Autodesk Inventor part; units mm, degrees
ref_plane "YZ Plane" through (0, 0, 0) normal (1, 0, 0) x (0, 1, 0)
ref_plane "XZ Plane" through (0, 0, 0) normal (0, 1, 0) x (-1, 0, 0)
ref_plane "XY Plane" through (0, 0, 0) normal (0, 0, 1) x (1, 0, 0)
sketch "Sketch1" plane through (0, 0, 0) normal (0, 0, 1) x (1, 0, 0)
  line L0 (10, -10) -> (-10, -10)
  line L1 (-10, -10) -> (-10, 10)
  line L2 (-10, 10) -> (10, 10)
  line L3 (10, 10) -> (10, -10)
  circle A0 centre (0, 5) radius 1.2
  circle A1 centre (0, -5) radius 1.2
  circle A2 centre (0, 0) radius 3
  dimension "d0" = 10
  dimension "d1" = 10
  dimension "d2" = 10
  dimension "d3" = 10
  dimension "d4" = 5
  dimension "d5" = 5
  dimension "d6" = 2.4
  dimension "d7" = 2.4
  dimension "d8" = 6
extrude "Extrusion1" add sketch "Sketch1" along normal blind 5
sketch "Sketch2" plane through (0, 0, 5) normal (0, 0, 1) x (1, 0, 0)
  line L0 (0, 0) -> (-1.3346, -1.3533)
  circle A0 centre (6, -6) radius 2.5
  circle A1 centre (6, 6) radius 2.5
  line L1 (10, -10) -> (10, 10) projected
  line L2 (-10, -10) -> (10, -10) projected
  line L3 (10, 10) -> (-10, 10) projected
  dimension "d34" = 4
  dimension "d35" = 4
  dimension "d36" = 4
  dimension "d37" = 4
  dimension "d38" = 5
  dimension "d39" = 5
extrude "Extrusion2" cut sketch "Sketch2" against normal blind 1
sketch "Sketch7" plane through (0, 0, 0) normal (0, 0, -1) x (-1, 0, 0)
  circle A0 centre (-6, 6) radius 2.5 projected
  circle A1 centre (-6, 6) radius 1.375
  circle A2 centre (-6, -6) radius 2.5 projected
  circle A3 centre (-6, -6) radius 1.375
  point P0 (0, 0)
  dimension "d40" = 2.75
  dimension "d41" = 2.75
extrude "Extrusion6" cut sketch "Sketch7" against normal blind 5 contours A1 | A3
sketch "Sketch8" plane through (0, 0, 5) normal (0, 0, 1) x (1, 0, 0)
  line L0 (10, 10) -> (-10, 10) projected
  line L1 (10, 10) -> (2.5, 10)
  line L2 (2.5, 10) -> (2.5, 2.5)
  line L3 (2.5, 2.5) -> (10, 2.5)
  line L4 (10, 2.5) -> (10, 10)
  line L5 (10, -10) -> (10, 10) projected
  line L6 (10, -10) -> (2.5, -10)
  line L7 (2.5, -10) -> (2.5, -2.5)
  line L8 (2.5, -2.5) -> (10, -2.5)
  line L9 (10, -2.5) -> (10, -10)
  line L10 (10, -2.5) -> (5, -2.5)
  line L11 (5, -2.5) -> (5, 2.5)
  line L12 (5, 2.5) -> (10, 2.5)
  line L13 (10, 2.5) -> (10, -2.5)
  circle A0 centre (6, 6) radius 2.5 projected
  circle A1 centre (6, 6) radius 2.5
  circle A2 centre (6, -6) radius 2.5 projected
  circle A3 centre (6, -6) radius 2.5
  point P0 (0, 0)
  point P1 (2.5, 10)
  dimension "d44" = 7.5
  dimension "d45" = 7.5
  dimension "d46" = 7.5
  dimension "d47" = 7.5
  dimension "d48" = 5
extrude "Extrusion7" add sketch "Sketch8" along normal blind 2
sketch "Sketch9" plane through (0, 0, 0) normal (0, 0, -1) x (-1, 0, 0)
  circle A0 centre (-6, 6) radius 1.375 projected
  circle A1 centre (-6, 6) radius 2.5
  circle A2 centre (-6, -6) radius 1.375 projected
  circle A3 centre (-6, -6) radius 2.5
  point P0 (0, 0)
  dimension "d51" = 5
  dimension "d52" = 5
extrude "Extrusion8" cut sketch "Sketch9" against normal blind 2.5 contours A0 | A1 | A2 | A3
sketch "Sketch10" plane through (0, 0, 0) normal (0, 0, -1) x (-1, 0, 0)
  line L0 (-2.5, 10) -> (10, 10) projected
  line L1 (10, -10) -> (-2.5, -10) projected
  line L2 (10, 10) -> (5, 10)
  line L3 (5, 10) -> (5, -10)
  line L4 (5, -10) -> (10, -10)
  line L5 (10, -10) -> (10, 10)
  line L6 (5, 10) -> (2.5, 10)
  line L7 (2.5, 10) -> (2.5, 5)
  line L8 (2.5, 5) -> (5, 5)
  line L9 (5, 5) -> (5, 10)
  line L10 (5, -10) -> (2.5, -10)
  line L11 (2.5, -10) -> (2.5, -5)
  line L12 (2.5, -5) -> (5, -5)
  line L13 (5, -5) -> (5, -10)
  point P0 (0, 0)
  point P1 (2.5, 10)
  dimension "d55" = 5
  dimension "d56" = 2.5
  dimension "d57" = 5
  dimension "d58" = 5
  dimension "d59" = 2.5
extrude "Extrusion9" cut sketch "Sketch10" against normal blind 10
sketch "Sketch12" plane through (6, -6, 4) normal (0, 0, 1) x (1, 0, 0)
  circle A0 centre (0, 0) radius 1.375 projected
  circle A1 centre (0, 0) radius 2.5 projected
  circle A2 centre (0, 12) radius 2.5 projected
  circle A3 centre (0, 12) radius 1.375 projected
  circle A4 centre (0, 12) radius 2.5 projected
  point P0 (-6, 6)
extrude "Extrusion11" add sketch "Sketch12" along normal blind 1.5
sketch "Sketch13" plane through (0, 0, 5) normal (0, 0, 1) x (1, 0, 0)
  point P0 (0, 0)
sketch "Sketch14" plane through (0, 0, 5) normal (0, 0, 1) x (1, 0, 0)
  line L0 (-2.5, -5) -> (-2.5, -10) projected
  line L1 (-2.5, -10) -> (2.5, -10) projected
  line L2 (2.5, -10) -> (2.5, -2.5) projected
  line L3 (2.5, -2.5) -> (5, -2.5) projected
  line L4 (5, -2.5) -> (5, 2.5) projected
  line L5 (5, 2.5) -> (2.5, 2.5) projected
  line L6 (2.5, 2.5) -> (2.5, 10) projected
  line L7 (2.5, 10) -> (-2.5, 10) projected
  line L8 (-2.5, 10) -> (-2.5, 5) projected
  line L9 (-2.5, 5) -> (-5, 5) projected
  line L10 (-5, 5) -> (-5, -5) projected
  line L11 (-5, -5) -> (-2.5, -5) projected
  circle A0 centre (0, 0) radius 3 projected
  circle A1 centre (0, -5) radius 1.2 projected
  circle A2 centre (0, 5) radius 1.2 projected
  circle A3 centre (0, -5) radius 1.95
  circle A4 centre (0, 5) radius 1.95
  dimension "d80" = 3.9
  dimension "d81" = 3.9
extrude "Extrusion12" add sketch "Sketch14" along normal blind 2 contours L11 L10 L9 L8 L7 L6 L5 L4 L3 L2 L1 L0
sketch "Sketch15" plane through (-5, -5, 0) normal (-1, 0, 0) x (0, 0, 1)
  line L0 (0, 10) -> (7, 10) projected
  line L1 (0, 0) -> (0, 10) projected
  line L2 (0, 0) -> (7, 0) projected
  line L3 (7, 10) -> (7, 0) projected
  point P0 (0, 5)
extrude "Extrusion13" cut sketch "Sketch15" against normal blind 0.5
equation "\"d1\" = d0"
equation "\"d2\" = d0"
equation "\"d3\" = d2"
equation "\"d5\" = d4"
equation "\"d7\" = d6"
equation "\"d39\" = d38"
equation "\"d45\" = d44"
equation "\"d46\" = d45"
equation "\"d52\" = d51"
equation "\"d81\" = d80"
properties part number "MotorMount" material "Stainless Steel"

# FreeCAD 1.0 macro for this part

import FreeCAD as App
import Part
import Sketcher

V = App.Vector
Q = App.Units.Quantity

doc = App.newDocument("Part")
params = doc.addObject("Spreadsheet::Sheet", "Params")
for row, (alias, value) in enumerate([
    ("sketch1_diameter", "6 mm"),
    ("sketch1_diameter2", "2.4 mm"),
    ("pad1_length", "5 mm"),
    ("sketch2_diameter", "5 mm"),
    ("pocket1_length", "1 mm"),
    ("sketch3_diameter", "2.75 mm"),
    ("pocket2_length", "5 mm"),
    ("sketch4_diameter", "5 mm"),
    ("sketch4_height", "5 mm"),
    ("sketch4_width", "7.5 mm"),
    ("pad2_length", "2 mm"),
    ("sketch5_diameter", "5 mm"),
    ("pocket3_length", "2.5 mm"),
    ("sketch6_height", "5 mm"),
    ("sketch6_width", "2.5 mm"),
    ("pocket4_length", "10 mm"),
    ("sketch7_diameter", "5 mm"),
    ("sketch7_diameter2", "2.75 mm"),
    ("pad3_length", "1.5 mm"),
    ("sketch8_diameter", "3.9 mm"),
    ("sketch8_diameter2", "6 mm"),
    ("sketch8_width", "5 mm"),
    ("sketch8_height", "10 mm"),
    ("sketch8_width2", "2.5 mm"),
    ("pad4_length", "2 mm"),
    ("sketch9_width", "10 mm"),
    ("sketch9_height", "7 mm"),
    ("pocket5_length", "0.5 mm"),
], start=1):
    params.set(f"A{row}", alias)
    params.set(f"B{row}", "=" + value)
    params.setAlias(f"B{row}", alias)

body = doc.addObject("PartDesign::Body", "Body")

# Sketch on XY plane
sketch1 = body.newObject("Sketcher::SketchObject", "Sketch")
sketch1.AttachmentSupport = (doc.getObject("XY_Plane"), [""])
sketch1.MapMode = "FlatFace"
sketch1.addGeometry([
    Part.LineSegment(V(-10, -10, 0), V(10, -10, 0)),  # 0
    Part.LineSegment(V(10, -10, 0), V(10, 10, 0)),  # 1
    Part.LineSegment(V(10, 10, 0), V(-10, 10, 0)),  # 2
    Part.LineSegment(V(-10, 10, 0), V(-10, -10, 0)),  # 3
    Part.Circle(V(0, -5, 0), V(0, 0, 1), 1.2),  # 4
    Part.Circle(V(0, 0, 0), V(0, 0, 1), 3),  # 5
    Part.Circle(V(0, 5, 0), V(0, 0, 1), 1.2),  # 6
], False)
sketch1.addConstraint([
    Sketcher.Constraint("Coincident", 0, 2, 1, 1),
    Sketcher.Constraint("Coincident", 1, 2, 2, 1),
    Sketcher.Constraint("Coincident", 2, 2, 3, 1),
    Sketcher.Constraint("Coincident", 3, 2, 0, 1),
    Sketcher.Constraint("Horizontal", 0),
    Sketcher.Constraint("Vertical", 1),
    Sketcher.Constraint("Horizontal", 2),
    Sketcher.Constraint("Vertical", 3),
    Sketcher.Constraint("Coincident", 5, 3, -1, 1),
    Sketcher.Constraint("Equal", 4, 6),
    Sketcher.Constraint("Symmetric", 4, 3, 6, 3, -1, 1),
    Sketcher.Constraint("Symmetric", 0, 2, 2, 2, -1, 1),
    Sketcher.Constraint("PointOnObject", 4, 3, -2),
    Sketcher.Constraint("Equal", 2, 1),
    Sketcher.Constraint("Diameter", 5, Q("6 mm")),
    Sketcher.Constraint("Diameter", 4, Q("2.4 mm")),
    Sketcher.Constraint("DistanceY", 4, 3, -1, 1, Q("5 mm")),
    Sketcher.Constraint("DistanceX", -1, 1, 0, 2, Q("10 mm")),
])
sketch1.setExpression("Constraints[14]", "Params.sketch1_diameter")
sketch1.setExpression("Constraints[15]", "Params.sketch1_diameter2")
pad1 = body.newObject("PartDesign::Pad", "Pad")
pad1.Profile = sketch1
pad1.setExpression("Length", "Params.pad1_length")

# Sketch on XY plane
sketch2 = body.newObject("Sketcher::SketchObject", "Sketch001")
sketch2.AttachmentSupport = (doc.getObject("XY_Plane"), [""])
sketch2.MapMode = "FlatFace"
sketch2.AttachmentOffset = App.Placement(V(0, 0, 5), App.Rotation())
sketch2.addGeometry([
    Part.Circle(V(6, -6, 0), V(0, 0, 1), 2.5),
    Part.Circle(V(6, 6, 0), V(0, 0, 1), 2.5),
], False)
sketch2.addConstraint([
    Sketcher.Constraint("Equal", 0, 1),
    Sketcher.Constraint("Symmetric", 0, 3, 1, 3, -1),
    Sketcher.Constraint("Diameter", 0, Q("5 mm")),
    Sketcher.Constraint("DistanceX", -1, 1, 0, 3, Q("6 mm")),
    Sketcher.Constraint("DistanceY", 0, 3, -1, 1, Q("6 mm")),
])
sketch2.setExpression("Constraints[2]", "Params.sketch2_diameter")
pocket1 = body.newObject("PartDesign::Pocket", "Pocket")
pocket1.Profile = sketch2
pocket1.setExpression("Length", "Params.pocket1_length")

# Sketch on XY plane
sketch3 = body.newObject("Sketcher::SketchObject", "Sketch002")
sketch3.AttachmentSupport = (doc.getObject("XY_Plane"), [""])
sketch3.MapMode = "FlatFace"
sketch3.addGeometry([
    Part.Circle(V(6, 6, 0), V(0, 0, 1), 1.4),
    Part.Circle(V(6, -6, 0), V(0, 0, 1), 1.4),
], False)
sketch3.addConstraint([
    Sketcher.Constraint("Equal", 0, 1),
    Sketcher.Constraint("Symmetric", 0, 3, 1, 3, -1),
    Sketcher.Constraint("Diameter", 0, Q("2.75 mm")),
    Sketcher.Constraint("DistanceX", -1, 1, 0, 3, Q("6 mm")),
    Sketcher.Constraint("DistanceY", -1, 1, 0, 3, Q("6 mm")),
])
sketch3.setExpression("Constraints[2]", "Params.sketch3_diameter")
pocket2 = body.newObject("PartDesign::Pocket", "Pocket001")
pocket2.Profile = sketch3
pocket2.setExpression("Length", "Params.pocket2_length")
pocket2.Reversed = True

# Sketch on XY plane
sketch4 = body.newObject("Sketcher::SketchObject", "Sketch003")
sketch4.AttachmentSupport = (doc.getObject("XY_Plane"), [""])
sketch4.MapMode = "FlatFace"
sketch4.AttachmentOffset = App.Placement(V(0, 0, 5), App.Rotation())
sketch4.addGeometry([
    Part.LineSegment(V(10, 10, 0), V(2.5, 10, 0)),  # 0
    Part.LineSegment(V(2.5, 10, 0), V(2.5, 2.5, 0)),  # 1
    Part.LineSegment(V(2.5, 2.5, 0), V(5, 2.5, 0)),  # 2
    Part.LineSegment(V(5, 2.5, 0), V(5, -2.5, 0)),  # 3
    Part.LineSegment(V(5, -2.5, 0), V(2.5, -2.5, 0)),  # 4
    Part.LineSegment(V(2.5, -2.5, 0), V(2.5, -10, 0)),  # 5
    Part.LineSegment(V(2.5, -10, 0), V(10, -10, 0)),  # 6
    Part.LineSegment(V(10, -10, 0), V(10, 10, 0)),  # 7
    Part.Circle(V(6, 6, 0), V(0, 0, 1), 2.5),  # 8
    Part.Circle(V(6, -6, 0), V(0, 0, 1), 2.5),  # 9
], False)
sketch4.addConstraint([
    Sketcher.Constraint("Coincident", 0, 2, 1, 1),
    Sketcher.Constraint("Coincident", 1, 2, 2, 1),
    Sketcher.Constraint("Coincident", 2, 2, 3, 1),
    Sketcher.Constraint("Coincident", 3, 2, 4, 1),
    Sketcher.Constraint("Coincident", 4, 2, 5, 1),
    Sketcher.Constraint("Coincident", 5, 2, 6, 1),
    Sketcher.Constraint("Coincident", 6, 2, 7, 1),
    Sketcher.Constraint("Coincident", 7, 2, 0, 1),
    Sketcher.Constraint("Horizontal", 0),
    Sketcher.Constraint("Vertical", 1),
    Sketcher.Constraint("Horizontal", 2),
    Sketcher.Constraint("Vertical", 3),
    Sketcher.Constraint("Horizontal", 4),
    Sketcher.Constraint("Vertical", 5),
    Sketcher.Constraint("Horizontal", 6),
    Sketcher.Constraint("Vertical", 7),
    Sketcher.Constraint("Equal", 8, 9),
    Sketcher.Constraint("Symmetric", 8, 3, 9, 3, -1),
    Sketcher.Constraint("Symmetric", 1, 2, 4, 2, -1),
    Sketcher.Constraint("Equal", 6, 1),
    Sketcher.Constraint("Equal", 1, 5),
    Sketcher.Constraint("Diameter", 8, Q("5 mm")),
    Sketcher.Constraint("DistanceY", 3, 2, 3, 1, Q("5 mm")),
    Sketcher.Constraint("DistanceX", 0, 2, 0, 1, Q("7.5 mm")),
    Sketcher.Constraint("DistanceX", -1, 1, 2, 2, Q("5 mm")),
    Sketcher.Constraint("DistanceX", 3, 2, 6, 2, Q("5 mm")),
    Sketcher.Constraint("DistanceX", -1, 1, 8, 3, Q("6 mm")),
    Sketcher.Constraint("DistanceY", -1, 1, 8, 3, Q("6 mm")),
])
sketch4.setExpression("Constraints[21]", "Params.sketch4_diameter")
sketch4.setExpression("Constraints[22]", "Params.sketch4_height")
sketch4.setExpression("Constraints[23]", "Params.sketch4_width")
pad2 = body.newObject("PartDesign::Pad", "Pad001")
pad2.Profile = sketch4
pad2.setExpression("Length", "Params.pad2_length")

# Sketch on XY plane
sketch5 = body.newObject("Sketcher::SketchObject", "Sketch004")
sketch5.AttachmentSupport = (doc.getObject("XY_Plane"), [""])
sketch5.MapMode = "FlatFace"
sketch5.addGeometry([
    Part.Circle(V(6, 6, 0), V(0, 0, 1), 2.5),
    Part.Circle(V(6, -6, 0), V(0, 0, 1), 2.5),
], False)
sketch5.addConstraint([
    Sketcher.Constraint("Equal", 0, 1),
    Sketcher.Constraint("Symmetric", 0, 3, 1, 3, -1),
    Sketcher.Constraint("Diameter", 0, Q("5 mm")),
    Sketcher.Constraint("DistanceX", -1, 1, 0, 3, Q("6 mm")),
    Sketcher.Constraint("DistanceY", -1, 1, 0, 3, Q("6 mm")),
])
sketch5.setExpression("Constraints[2]", "Params.sketch5_diameter")
pocket3 = body.newObject("PartDesign::Pocket", "Pocket002")
pocket3.Profile = sketch5
pocket3.setExpression("Length", "Params.pocket3_length")
pocket3.Reversed = True

# Sketch on XY plane
sketch6 = body.newObject("Sketcher::SketchObject", "Sketch005")
sketch6.AttachmentSupport = (doc.getObject("XY_Plane"), [""])
sketch6.MapMode = "FlatFace"
sketch6.addGeometry([
    Part.LineSegment(V(-2.5, 10, 0), V(-2.5, 5, 0)),  # 0
    Part.LineSegment(V(-2.5, 5, 0), V(-5, 5, 0)),  # 1
    Part.LineSegment(V(-5, 5, 0), V(-5, -5, 0)),  # 2
    Part.LineSegment(V(-5, -5, 0), V(-2.5, -5, 0)),  # 3
    Part.LineSegment(V(-2.5, -5, 0), V(-2.5, -10, 0)),  # 4
    Part.LineSegment(V(-2.5, -10, 0), V(-10, -10, 0)),  # 5
    Part.LineSegment(V(-10, -10, 0), V(-10, 10, 0)),  # 6
    Part.LineSegment(V(-10, 10, 0), V(-2.5, 10, 0)),  # 7
], False)
sketch6.addConstraint([
    Sketcher.Constraint("Coincident", 0, 2, 1, 1),
    Sketcher.Constraint("Coincident", 1, 2, 2, 1),
    Sketcher.Constraint("Coincident", 2, 2, 3, 1),
    Sketcher.Constraint("Coincident", 3, 2, 4, 1),
    Sketcher.Constraint("Coincident", 4, 2, 5, 1),
    Sketcher.Constraint("Coincident", 5, 2, 6, 1),
    Sketcher.Constraint("Coincident", 6, 2, 7, 1),
    Sketcher.Constraint("Coincident", 7, 2, 0, 1),
    Sketcher.Constraint("Vertical", 0),
    Sketcher.Constraint("Horizontal", 1),
    Sketcher.Constraint("Vertical", 2),
    Sketcher.Constraint("Horizontal", 3),
    Sketcher.Constraint("Vertical", 4),
    Sketcher.Constraint("Horizontal", 5),
    Sketcher.Constraint("Vertical", 6),
    Sketcher.Constraint("Horizontal", 7),
    Sketcher.Constraint("Symmetric", 0, 2, 3, 2, -1),
    Sketcher.Constraint("Equal", 0, 4),
    Sketcher.Constraint("DistanceY", 0, 2, 0, 1, Q("5 mm")),
    Sketcher.Constraint("DistanceX", 1, 2, 1, 1, Q("2.5 mm")),
    Sketcher.Constraint("DistanceY", -1, 1, 0, 2, Q("5 mm")),
    Sketcher.Constraint("DistanceX", 1, 2, -1, 1, Q("5 mm")),
    Sketcher.Constraint("DistanceX", 5, 2, 2, 2, Q("5 mm")),
])
sketch6.setExpression("Constraints[18]", "Params.sketch6_height")
sketch6.setExpression("Constraints[19]", "Params.sketch6_width")
pocket4 = body.newObject("PartDesign::Pocket", "Pocket003")
pocket4.Profile = sketch6
pocket4.setExpression("Length", "Params.pocket4_length")
pocket4.Reversed = True

# Sketch on XY plane
sketch7 = body.newObject("Sketcher::SketchObject", "Sketch006")
sketch7.AttachmentSupport = (doc.getObject("XY_Plane"), [""])
sketch7.MapMode = "FlatFace"
sketch7.AttachmentOffset = App.Placement(V(0, 0, 4), App.Rotation())
sketch7.addGeometry([
    Part.Circle(V(6, -6, 0), V(0, 0, 1), 2.5),
    Part.Circle(V(6, -6, 0), V(0, 0, 1), 1.4),
    Part.Circle(V(6, 6, 0), V(0, 0, 1), 2.5),
    Part.Circle(V(6, 6, 0), V(0, 0, 1), 1.4),
], False)
sketch7.addConstraint([
    Sketcher.Constraint("Coincident", 1, 3, 0, 3),
    Sketcher.Constraint("Coincident", 3, 3, 2, 3),
    Sketcher.Constraint("Equal", 0, 2),
    Sketcher.Constraint("Equal", 1, 3),
    Sketcher.Constraint("Symmetric", 0, 3, 2, 3, -1),
    Sketcher.Constraint("Diameter", 0, Q("5 mm")),
    Sketcher.Constraint("Diameter", 1, Q("2.75 mm")),
    Sketcher.Constraint("DistanceX", -1, 1, 0, 3, Q("6 mm")),
    Sketcher.Constraint("DistanceY", 0, 3, -1, 1, Q("6 mm")),
])
sketch7.setExpression("Constraints[5]", "Params.sketch7_diameter")
sketch7.setExpression("Constraints[6]", "Params.sketch7_diameter2")
pad3 = body.newObject("PartDesign::Pad", "Pad002")
pad3.Profile = sketch7
pad3.setExpression("Length", "Params.pad3_length")

# Sketch on XY plane
sketch8 = body.newObject("Sketcher::SketchObject", "Sketch007")
sketch8.AttachmentSupport = (doc.getObject("XY_Plane"), [""])
sketch8.MapMode = "FlatFace"
sketch8.AttachmentOffset = App.Placement(V(0, 0, 5), App.Rotation())
sketch8.addGeometry([
    Part.LineSegment(V(-5, -5, 0), V(-2.5, -5, 0)),  # 0
    Part.LineSegment(V(-2.5, -5, 0), V(-2.5, -10, 0)),  # 1
    Part.LineSegment(V(-2.5, -10, 0), V(2.5, -10, 0)),  # 2
    Part.LineSegment(V(2.5, -10, 0), V(2.5, -2.5, 0)),  # 3
    Part.LineSegment(V(2.5, -2.5, 0), V(5, -2.5, 0)),  # 4
    Part.LineSegment(V(5, -2.5, 0), V(5, 2.5, 0)),  # 5
    Part.LineSegment(V(5, 2.5, 0), V(2.5, 2.5, 0)),  # 6
    Part.LineSegment(V(2.5, 2.5, 0), V(2.5, 10, 0)),  # 7
    Part.LineSegment(V(2.5, 10, 0), V(-2.5, 10, 0)),  # 8
    Part.LineSegment(V(-2.5, 10, 0), V(-2.5, 5, 0)),  # 9
    Part.LineSegment(V(-2.5, 5, 0), V(-5, 5, 0)),  # 10
    Part.LineSegment(V(-5, 5, 0), V(-5, -5, 0)),  # 11
    Part.Circle(V(0, -5, 0), V(0, 0, 1), 1.9),  # 12
    Part.Circle(V(0, 0, 0), V(0, 0, 1), 3),  # 13
    Part.Circle(V(0, 5, 0), V(0, 0, 1), 1.9),  # 14
], False)
sketch8.addConstraint([
    Sketcher.Constraint("Coincident", 0, 2, 1, 1),
    Sketcher.Constraint("Coincident", 1, 2, 2, 1),
    Sketcher.Constraint("Coincident", 2, 2, 3, 1),
    Sketcher.Constraint("Coincident", 3, 2, 4, 1),
    Sketcher.Constraint("Coincident", 4, 2, 5, 1),
    Sketcher.Constraint("Coincident", 5, 2, 6, 1),
    Sketcher.Constraint("Coincident", 6, 2, 7, 1),
    Sketcher.Constraint("Coincident", 7, 2, 8, 1),
    Sketcher.Constraint("Coincident", 8, 2, 9, 1),
    Sketcher.Constraint("Coincident", 9, 2, 10, 1),
    Sketcher.Constraint("Coincident", 10, 2, 11, 1),
    Sketcher.Constraint("Coincident", 11, 2, 0, 1),
    Sketcher.Constraint("Horizontal", 0),
    Sketcher.Constraint("Vertical", 1),
    Sketcher.Constraint("Horizontal", 2),
    Sketcher.Constraint("Vertical", 3),
    Sketcher.Constraint("Horizontal", 4),
    Sketcher.Constraint("Vertical", 5),
    Sketcher.Constraint("Horizontal", 6),
    Sketcher.Constraint("Vertical", 7),
    Sketcher.Constraint("Horizontal", 8),
    Sketcher.Constraint("Vertical", 9),
    Sketcher.Constraint("Horizontal", 10),
    Sketcher.Constraint("Vertical", 11),
    Sketcher.Constraint("Coincident", 13, 3, -1, 1),
    Sketcher.Constraint("Equal", 12, 14),
    Sketcher.Constraint("Symmetric", 12, 3, 14, 3, -1, 1),
    Sketcher.Constraint("Symmetric", 1, 2, 7, 2, -1, 1),
    Sketcher.Constraint("Symmetric", 3, 2, 6, 2, -1),
    Sketcher.Constraint("Symmetric", 0, 2, 9, 2, -1),
    Sketcher.Constraint("PointOnObject", 12, 3, -2),
    Sketcher.Constraint("Horizontal", 12, 3, 0, 2),
    Sketcher.Constraint("Equal", 0, 4),
    Sketcher.Constraint("Equal", 8, 1),
    Sketcher.Constraint("Equal", 1, 5),
    Sketcher.Constraint("Diameter", 12, Q("3.9 mm")),
    Sketcher.Constraint("Diameter", 13, Q("6 mm")),
    Sketcher.Constraint("DistanceX", 2, 1, 2, 2, Q("5 mm")),
    Sketcher.Constraint("DistanceY", 11, 2, 11, 1, Q("10 mm")),
    Sketcher.Constraint("DistanceX", 0, 1, 0, 2, Q("2.5 mm")),
])
sketch8.setExpression("Constraints[35]", "Params.sketch8_diameter")
sketch8.setExpression("Constraints[36]", "Params.sketch8_diameter2")
sketch8.setExpression("Constraints[37]", "Params.sketch8_width")
sketch8.setExpression("Constraints[38]", "Params.sketch8_height")
sketch8.setExpression("Constraints[39]", "Params.sketch8_width2")
pad4 = body.newObject("PartDesign::Pad", "Pad003")
pad4.Profile = sketch8
pad4.setExpression("Length", "Params.pad4_length")

# Sketch on YZ plane
sketch9 = body.newObject("Sketcher::SketchObject", "Sketch008")
sketch9.AttachmentSupport = (doc.getObject("YZ_Plane"), [""])
sketch9.MapMode = "FlatFace"
sketch9.AttachmentOffset = App.Placement(V(0, 0, -5), App.Rotation())
sketch9.addGeometry([
    Part.LineSegment(V(5, 7, 0), V(5, 0, 0)),
    Part.LineSegment(V(5, 0, 0), V(-5, 0, 0)),
    Part.LineSegment(V(-5, 0, 0), V(-5, 7, 0)),
    Part.LineSegment(V(-5, 7, 0), V(5, 7, 0)),
], False)
sketch9.addConstraint([
    Sketcher.Constraint("Coincident", 0, 2, 1, 1),
    Sketcher.Constraint("Coincident", 1, 2, 2, 1),
    Sketcher.Constraint("Coincident", 2, 2, 3, 1),
    Sketcher.Constraint("Coincident", 3, 2, 0, 1),
    Sketcher.Constraint("Vertical", 0),
    Sketcher.Constraint("Horizontal", 1),
    Sketcher.Constraint("Vertical", 2),
    Sketcher.Constraint("Horizontal", 3),
    Sketcher.Constraint("Symmetric", 0, 2, 1, 2, -1, 1),
    Sketcher.Constraint("DistanceX", 1, 2, 1, 1, Q("10 mm")),
    Sketcher.Constraint("DistanceY", 0, 2, 0, 1, Q("7 mm")),
])
sketch9.setExpression("Constraints[9]", "Params.sketch9_width")
sketch9.setExpression("Constraints[10]", "Params.sketch9_height")
pocket5 = body.newObject("PartDesign::Pocket", "Pocket004")
pocket5.Profile = sketch9
pocket5.setExpression("Length", "Params.pocket5_length")
pocket5.Reversed = True

doc.recompute()
